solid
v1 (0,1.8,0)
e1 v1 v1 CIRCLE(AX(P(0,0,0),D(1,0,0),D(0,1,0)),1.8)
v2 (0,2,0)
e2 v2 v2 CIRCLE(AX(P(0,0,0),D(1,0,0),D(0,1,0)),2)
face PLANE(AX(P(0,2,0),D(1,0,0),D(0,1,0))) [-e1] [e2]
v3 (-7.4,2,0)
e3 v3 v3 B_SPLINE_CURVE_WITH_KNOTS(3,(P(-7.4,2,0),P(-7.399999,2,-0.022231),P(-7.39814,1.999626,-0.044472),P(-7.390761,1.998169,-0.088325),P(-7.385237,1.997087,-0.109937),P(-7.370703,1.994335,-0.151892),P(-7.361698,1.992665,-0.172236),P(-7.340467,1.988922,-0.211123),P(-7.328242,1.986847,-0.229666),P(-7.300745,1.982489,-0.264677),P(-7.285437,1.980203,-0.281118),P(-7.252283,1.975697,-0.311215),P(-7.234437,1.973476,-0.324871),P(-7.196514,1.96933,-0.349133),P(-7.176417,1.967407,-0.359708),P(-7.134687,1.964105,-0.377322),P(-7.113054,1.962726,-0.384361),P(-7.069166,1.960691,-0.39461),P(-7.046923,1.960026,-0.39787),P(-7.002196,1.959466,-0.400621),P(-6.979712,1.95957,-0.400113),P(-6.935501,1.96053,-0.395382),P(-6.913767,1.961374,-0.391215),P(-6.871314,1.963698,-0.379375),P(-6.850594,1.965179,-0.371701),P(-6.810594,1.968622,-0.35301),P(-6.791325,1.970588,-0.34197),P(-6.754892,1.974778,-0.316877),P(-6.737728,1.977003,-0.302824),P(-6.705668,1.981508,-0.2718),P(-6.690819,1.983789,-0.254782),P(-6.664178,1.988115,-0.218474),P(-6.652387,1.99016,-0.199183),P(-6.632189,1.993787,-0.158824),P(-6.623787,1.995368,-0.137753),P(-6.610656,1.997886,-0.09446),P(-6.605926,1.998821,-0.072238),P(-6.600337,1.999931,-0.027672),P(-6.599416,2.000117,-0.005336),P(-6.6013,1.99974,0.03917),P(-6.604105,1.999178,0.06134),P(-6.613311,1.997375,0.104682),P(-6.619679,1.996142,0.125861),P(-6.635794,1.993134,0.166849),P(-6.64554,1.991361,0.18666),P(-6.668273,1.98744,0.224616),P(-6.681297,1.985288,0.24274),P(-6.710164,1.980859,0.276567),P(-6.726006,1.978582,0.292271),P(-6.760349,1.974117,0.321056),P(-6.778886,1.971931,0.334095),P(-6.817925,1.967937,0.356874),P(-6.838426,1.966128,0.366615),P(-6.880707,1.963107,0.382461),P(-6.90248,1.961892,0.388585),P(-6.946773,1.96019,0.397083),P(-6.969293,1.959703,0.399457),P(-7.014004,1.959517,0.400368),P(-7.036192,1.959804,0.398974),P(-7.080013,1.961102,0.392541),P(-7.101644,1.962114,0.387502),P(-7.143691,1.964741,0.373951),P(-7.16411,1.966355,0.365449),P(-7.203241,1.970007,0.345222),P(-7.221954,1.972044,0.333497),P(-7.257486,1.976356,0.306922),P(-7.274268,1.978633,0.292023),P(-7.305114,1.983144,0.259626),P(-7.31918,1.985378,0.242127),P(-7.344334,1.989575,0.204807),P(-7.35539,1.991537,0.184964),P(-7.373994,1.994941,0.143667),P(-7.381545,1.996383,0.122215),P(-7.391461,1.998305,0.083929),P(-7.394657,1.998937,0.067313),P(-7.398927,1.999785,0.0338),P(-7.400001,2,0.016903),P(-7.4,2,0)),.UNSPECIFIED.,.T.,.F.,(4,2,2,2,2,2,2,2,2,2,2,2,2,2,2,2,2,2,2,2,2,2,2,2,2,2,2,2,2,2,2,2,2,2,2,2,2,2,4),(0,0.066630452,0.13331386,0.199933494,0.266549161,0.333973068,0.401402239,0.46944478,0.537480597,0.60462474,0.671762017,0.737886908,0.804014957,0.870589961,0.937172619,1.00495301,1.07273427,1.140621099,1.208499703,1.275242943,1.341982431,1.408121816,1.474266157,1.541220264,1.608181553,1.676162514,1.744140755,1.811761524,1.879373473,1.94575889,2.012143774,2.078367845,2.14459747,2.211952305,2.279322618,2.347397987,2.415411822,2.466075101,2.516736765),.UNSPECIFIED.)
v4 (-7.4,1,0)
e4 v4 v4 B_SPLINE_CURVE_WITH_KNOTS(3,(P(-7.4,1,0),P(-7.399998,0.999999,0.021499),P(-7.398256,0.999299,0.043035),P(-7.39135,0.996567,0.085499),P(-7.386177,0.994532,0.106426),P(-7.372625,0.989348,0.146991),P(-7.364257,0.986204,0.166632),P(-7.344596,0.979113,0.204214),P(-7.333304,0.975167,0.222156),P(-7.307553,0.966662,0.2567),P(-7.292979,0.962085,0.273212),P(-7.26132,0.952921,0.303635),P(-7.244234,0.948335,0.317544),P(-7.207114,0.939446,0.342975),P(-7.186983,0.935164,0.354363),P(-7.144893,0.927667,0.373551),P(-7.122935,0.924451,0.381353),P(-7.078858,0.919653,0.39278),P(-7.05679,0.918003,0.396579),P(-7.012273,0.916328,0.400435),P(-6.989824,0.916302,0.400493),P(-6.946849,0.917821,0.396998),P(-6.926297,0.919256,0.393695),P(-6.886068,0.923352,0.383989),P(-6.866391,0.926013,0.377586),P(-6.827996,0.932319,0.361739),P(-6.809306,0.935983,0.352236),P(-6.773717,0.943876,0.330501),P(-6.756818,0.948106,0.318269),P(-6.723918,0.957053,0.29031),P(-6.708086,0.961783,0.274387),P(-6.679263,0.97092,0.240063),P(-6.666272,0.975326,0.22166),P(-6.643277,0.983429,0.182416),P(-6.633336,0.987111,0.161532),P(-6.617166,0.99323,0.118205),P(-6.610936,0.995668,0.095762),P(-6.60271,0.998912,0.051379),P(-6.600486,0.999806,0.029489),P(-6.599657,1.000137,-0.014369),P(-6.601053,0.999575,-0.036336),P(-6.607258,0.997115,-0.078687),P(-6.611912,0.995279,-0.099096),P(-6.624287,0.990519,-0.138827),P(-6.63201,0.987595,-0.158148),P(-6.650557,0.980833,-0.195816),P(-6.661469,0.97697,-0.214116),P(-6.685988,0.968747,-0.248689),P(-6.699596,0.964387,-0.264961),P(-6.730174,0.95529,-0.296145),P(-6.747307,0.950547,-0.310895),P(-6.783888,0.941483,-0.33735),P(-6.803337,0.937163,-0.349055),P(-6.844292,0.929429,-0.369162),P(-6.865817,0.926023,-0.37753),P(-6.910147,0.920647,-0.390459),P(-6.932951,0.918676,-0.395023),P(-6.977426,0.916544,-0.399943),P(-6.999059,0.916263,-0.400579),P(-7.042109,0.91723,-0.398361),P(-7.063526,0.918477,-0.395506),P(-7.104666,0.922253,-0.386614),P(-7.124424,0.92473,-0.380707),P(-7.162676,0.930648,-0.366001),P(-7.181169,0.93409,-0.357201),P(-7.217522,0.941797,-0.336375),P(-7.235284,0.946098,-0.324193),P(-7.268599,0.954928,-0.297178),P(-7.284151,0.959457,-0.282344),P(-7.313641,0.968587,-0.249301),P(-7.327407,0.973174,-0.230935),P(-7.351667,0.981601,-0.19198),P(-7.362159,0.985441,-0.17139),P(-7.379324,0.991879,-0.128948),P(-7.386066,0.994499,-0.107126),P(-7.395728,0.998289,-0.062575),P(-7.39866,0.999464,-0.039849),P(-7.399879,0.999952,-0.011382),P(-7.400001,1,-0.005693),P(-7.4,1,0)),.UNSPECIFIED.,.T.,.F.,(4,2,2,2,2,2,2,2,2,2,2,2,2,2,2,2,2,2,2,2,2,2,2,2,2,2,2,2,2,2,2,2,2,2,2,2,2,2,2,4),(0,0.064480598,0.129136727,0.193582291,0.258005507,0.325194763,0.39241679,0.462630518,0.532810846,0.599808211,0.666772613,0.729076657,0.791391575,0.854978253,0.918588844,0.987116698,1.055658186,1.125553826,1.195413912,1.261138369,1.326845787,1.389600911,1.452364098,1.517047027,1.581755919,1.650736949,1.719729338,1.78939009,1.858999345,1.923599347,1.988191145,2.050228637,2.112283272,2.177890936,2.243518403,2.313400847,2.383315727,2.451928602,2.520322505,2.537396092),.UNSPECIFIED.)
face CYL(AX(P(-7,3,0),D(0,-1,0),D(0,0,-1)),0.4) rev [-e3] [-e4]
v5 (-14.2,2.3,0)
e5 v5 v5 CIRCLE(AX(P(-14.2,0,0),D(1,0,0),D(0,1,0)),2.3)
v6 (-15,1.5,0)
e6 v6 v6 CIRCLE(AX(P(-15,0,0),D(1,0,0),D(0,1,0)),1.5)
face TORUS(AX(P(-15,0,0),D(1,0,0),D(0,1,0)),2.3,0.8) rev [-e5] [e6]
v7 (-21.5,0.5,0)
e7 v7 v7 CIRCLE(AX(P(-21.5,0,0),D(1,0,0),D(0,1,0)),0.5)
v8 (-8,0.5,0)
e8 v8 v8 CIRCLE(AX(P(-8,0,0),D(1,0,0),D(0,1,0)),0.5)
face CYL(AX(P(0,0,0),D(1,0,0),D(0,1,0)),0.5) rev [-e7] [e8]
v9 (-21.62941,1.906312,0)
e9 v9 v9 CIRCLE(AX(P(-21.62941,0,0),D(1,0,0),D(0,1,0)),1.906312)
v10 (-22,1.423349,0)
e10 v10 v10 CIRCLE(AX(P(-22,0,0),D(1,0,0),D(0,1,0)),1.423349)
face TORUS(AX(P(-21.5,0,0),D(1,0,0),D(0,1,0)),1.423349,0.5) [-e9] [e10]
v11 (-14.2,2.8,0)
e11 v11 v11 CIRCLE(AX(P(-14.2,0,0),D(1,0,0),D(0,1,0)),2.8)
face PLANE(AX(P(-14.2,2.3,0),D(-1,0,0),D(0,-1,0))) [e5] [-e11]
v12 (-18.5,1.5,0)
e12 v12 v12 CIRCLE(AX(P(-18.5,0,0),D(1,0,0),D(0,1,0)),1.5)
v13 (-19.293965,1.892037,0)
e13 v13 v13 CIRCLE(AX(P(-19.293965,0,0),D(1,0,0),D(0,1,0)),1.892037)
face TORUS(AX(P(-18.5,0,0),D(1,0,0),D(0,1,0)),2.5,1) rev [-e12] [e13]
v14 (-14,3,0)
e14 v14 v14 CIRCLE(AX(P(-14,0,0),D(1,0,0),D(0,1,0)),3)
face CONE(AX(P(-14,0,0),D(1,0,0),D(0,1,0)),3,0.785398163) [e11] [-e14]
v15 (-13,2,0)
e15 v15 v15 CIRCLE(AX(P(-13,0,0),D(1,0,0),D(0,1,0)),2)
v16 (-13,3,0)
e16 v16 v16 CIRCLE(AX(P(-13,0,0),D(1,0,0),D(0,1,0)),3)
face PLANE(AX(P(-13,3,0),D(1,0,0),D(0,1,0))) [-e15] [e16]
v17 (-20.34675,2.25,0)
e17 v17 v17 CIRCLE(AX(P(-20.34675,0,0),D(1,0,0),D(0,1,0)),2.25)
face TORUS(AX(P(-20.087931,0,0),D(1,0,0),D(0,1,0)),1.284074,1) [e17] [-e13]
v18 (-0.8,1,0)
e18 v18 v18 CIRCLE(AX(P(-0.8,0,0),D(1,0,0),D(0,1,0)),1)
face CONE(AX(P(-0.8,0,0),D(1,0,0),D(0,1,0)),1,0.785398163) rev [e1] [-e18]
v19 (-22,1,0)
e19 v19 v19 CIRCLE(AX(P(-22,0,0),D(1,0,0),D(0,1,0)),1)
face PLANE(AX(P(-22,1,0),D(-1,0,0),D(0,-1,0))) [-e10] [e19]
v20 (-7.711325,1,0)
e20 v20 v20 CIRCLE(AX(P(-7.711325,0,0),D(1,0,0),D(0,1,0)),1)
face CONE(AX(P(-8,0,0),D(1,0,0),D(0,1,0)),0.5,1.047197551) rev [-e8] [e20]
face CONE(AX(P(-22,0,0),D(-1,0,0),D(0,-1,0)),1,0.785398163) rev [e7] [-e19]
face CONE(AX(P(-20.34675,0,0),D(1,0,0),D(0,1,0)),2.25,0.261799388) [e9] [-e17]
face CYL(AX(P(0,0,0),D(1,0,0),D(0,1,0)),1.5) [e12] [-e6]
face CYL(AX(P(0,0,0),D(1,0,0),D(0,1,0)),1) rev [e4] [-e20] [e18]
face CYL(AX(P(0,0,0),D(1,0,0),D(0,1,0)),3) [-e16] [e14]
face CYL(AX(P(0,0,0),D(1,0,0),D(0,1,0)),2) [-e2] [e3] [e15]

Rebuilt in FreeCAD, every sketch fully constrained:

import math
import FreeCAD as App
import Part
import Sketcher
Q = App.Units.Quantity

doc = App.newDocument("Part")
params = doc.addObject("Spreadsheet::Sheet", "Params")
for row, (alias, value) in enumerate([
    ("sketch1_radius", "1 mm"),
    ("sketch1_radius2", "0.8 mm"),
    ("sketch1_radius3", "0.5 mm"),
    ("sketch1_width", "13 mm"),
    ("sketch1_width2", "1 mm"),
    ("revolution_angle", "360 deg"),
    ("sketch2_diameter", "0.8 mm"),
], start=1):
    params.set(f"A{row}", alias)
    params.set(f"B{row}", "=" + value)
    params.setAlias(f"B{row}", alias)

body = doc.addObject("PartDesign::Body", "Body")

sketch1 = doc.addObject("Sketcher::SketchObject", "Sketch")
body.addObject(sketch1)
sketch1.AttachmentSupport = (doc.XY_Plane, [""])
sketch1.MapMode = "FlatFace"
sketch1.addGeometry(Part.LineSegment(App.Vector(-0.8, 1, 0), App.Vector(0, 1.8, 0)), False)
sketch1.addGeometry(Part.LineSegment(App.Vector(0, 1.8, 0), App.Vector(0, 2, 0)), False)
sketch1.addGeometry(Part.LineSegment(App.Vector(0, 2, 0), App.Vector(-13, 2, 0)), False)
sketch1.addGeometry(Part.LineSegment(App.Vector(-13, 2, 0), App.Vector(-13, 3, 0)), False)
sketch1.addGeometry(Part.LineSegment(App.Vector(-13, 3, 0), App.Vector(-14, 3, 0)), False)
sketch1.addGeometry(Part.LineSegment(App.Vector(-14, 3, 0), App.Vector(-14.2, 2.8, 0)), False)
sketch1.addGeometry(Part.LineSegment(App.Vector(-14.2, 2.8, 0), App.Vector(-14.2, 2.3, 0)), False)
sketch1.addGeometry(Part.ArcOfCircle(Part.Circle(App.Vector(-15, 2.3, 0), App.Vector(0, 0, 1), 0.8), math.radians(-90), math.radians(0)), False)
sketch1.addGeometry(Part.LineSegment(App.Vector(-15, 1.5, 0), App.Vector(-18.5, 1.5, 0)), False)
sketch1.addGeometry(Part.ArcOfCircle(Part.Circle(App.Vector(-18.5, 2.5, 0), App.Vector(0, 0, 1), 1), math.radians(-143), math.radians(-90)), False)
sketch1.addGeometry(Part.ArcOfCircle(Part.Circle(App.Vector(-20.09, 1.28, 0), App.Vector(0, 0, 1), 1), math.radians(37), math.radians(105)), False)
sketch1.addGeometry(Part.LineSegment(App.Vector(-20.35, 2.25, 0), App.Vector(-21.63, 1.91, 0)), False)
sketch1.addGeometry(Part.ArcOfCircle(Part.Circle(App.Vector(-21.5, 1.42, 0), App.Vector(0, 0, 1), 0.5), math.radians(105), math.radians(180)), False)
sketch1.addGeometry(Part.LineSegment(App.Vector(-22, 1.42, 0), App.Vector(-22, 1, 0)), False)
sketch1.addGeometry(Part.LineSegment(App.Vector(-22, 1, 0), App.Vector(-21.5, 0.5, 0)), False)
sketch1.addGeometry(Part.LineSegment(App.Vector(-21.5, 0.5, 0), App.Vector(-8, 0.5, 0)), False)
sketch1.addGeometry(Part.LineSegment(App.Vector(-8, 0.5, 0), App.Vector(-7.71, 1, 0)), False)
sketch1.addGeometry(Part.LineSegment(App.Vector(-7.71, 1, 0), App.Vector(-0.8, 1, 0)), False)
sketch1.addConstraint(Sketcher.Constraint("Coincident", 0, 2, 1, 1))
sketch1.addConstraint(Sketcher.Constraint("Coincident", 1, 2, 2, 1))
sketch1.addConstraint(Sketcher.Constraint("Coincident", 2, 2, 3, 1))
sketch1.addConstraint(Sketcher.Constraint("Coincident", 3, 2, 4, 1))
sketch1.addConstraint(Sketcher.Constraint("Coincident", 4, 2, 5, 1))
sketch1.addConstraint(Sketcher.Constraint("Coincident", 5, 2, 6, 1))
sketch1.addConstraint(Sketcher.Constraint("Tangent", 6, 2, 7, 2))
sketch1.addConstraint(Sketcher.Constraint("Tangent", 7, 1, 8, 1))
sketch1.addConstraint(Sketcher.Constraint("Tangent", 8, 2, 9, 2))
sketch1.addConstraint(Sketcher.Constraint("Tangent", 9, 1, 10, 1))
sketch1.addConstraint(Sketcher.Constraint("Tangent", 10, 2, 11, 1))
sketch1.addConstraint(Sketcher.Constraint("Tangent", 11, 2, 12, 1))
sketch1.addConstraint(Sketcher.Constraint("Tangent", 12, 2, 13, 1))
sketch1.addConstraint(Sketcher.Constraint("Coincident", 13, 2, 14, 1))
sketch1.addConstraint(Sketcher.Constraint("Coincident", 14, 2, 15, 1))
sketch1.addConstraint(Sketcher.Constraint("Coincident", 15, 2, 16, 1))
sketch1.addConstraint(Sketcher.Constraint("Coincident", 16, 2, 17, 1))
sketch1.addConstraint(Sketcher.Constraint("Coincident", 17, 2, 0, 1))
sketch1.addConstraint(Sketcher.Constraint("Vertical", 1))
sketch1.addConstraint(Sketcher.Constraint("Horizontal", 2))
sketch1.addConstraint(Sketcher.Constraint("Vertical", 3))
sketch1.addConstraint(Sketcher.Constraint("Horizontal", 4))
sketch1.addConstraint(Sketcher.Constraint("Vertical", 6))
sketch1.addConstraint(Sketcher.Constraint("Horizontal", 8))
sketch1.addConstraint(Sketcher.Constraint("Vertical", 13))
sketch1.addConstraint(Sketcher.Constraint("Horizontal", 15))
sketch1.addConstraint(Sketcher.Constraint("Horizontal", 17))
sketch1.addConstraint(Sketcher.Constraint("Equal", 9, 10))
sketch1.addConstraint(Sketcher.Constraint("PointOnObject", 0, 2, -2))
sketch1.addConstraint(Sketcher.Constraint("Parallel", 0, 5))
sketch1.addConstraint(Sketcher.Constraint("Perpendicular", 5, 14))
sketch1.addConstraint(Sketcher.Constraint("Horizontal", 13, 2, 16, 2))
sketch1.addConstraint(Sketcher.Constraint("Vertical", 12, 3, 14, 2))
sketch1.addConstraint(Sketcher.Constraint("Equal", 4, 3))
sketch1.addConstraint(Sketcher.Constraint("Radius", 9, Q("1 mm")))
sketch1.addConstraint(Sketcher.Constraint("Radius", 7, Q("0.8 mm")))
sketch1.addConstraint(Sketcher.Constraint("Radius", 12, Q("0.5 mm")))
sketch1.addConstraint(Sketcher.Constraint("DistanceX", 2, 2, 2, 1, Q("13 mm")))
sketch1.addConstraint(Sketcher.Constraint("DistanceX", 4, 2, 4, 1, Q("1 mm")))
sketch1.addConstraint(Sketcher.Constraint("Angle", 0, Q("45 deg")))
sketch1.addConstraint(Sketcher.Constraint("Angle", 11, Q("-165 deg")))
sketch1.addConstraint(Sketcher.Constraint("Angle", 16, Q("60 deg")))
sketch1.addConstraint(Sketcher.Constraint("DistanceX", 8, 2, 8, 1, Q("3.5 mm")))
sketch1.addConstraint(Sketcher.Constraint("DistanceX", 15, 1, 15, 2, Q("13.5 mm")))
sketch1.addConstraint(Sketcher.Constraint("DistanceY", 1, 1, 1, 2, Q("0.2 mm")))
sketch1.addConstraint(Sketcher.Constraint("DistanceY", 6, 2, 6, 1, Q("0.5 mm")))
sketch1.addConstraint(Sketcher.Constraint("DistanceX", 7, 3, -1, 1, Q("15 mm")))
sketch1.addConstraint(Sketcher.Constraint("DistanceY", -1, 1, 1, 2, Q("2 mm")))
sketch1.addConstraint(Sketcher.Constraint("DistanceX", 12, 2, -1, 1, Q("22 mm")))
sketch1.addConstraint(Sketcher.Constraint("DistanceY", -1, 1, 13, 2, Q("1 mm")))
sketch1.addConstraint(Sketcher.Constraint("DistanceY", -1, 1, 10, 2, Q("2.25 mm")))
sketch1.setExpression("Constraints[34]", "Params.sketch1_radius")
sketch1.setExpression("Constraints[35]", "Params.sketch1_radius2")
sketch1.setExpression("Constraints[36]", "Params.sketch1_radius3")
sketch1.setExpression("Constraints[37]", "Params.sketch1_width")
sketch1.setExpression("Constraints[38]", "Params.sketch1_width2")
revolution = doc.addObject("PartDesign::Revolution", "Revolution")
body.addObject(revolution)
revolution.Profile = sketch1
revolution.ReferenceAxis = (sketch1, ["H_Axis"])
revolution.setExpression("Angle", "Params.revolution_angle")

sketch2 = doc.addObject("Sketcher::SketchObject", "Sketch001")
body.addObject(sketch2)
sketch2.AttachmentSupport = (doc.XZ_Plane, [""])
sketch2.MapMode = "FlatFace"
sketch2.addGeometry(Part.Circle(App.Vector(-7, 0, 0), App.Vector(0, 0, 1), 0.4), False)
sketch2.addConstraint(Sketcher.Constraint("PointOnObject", 0, 3, -1))
sketch2.addConstraint(Sketcher.Constraint("Diameter", 0, Q("0.8 mm")))
sketch2.addConstraint(Sketcher.Constraint("DistanceX", 0, 3, -1, 1, Q("7 mm")))
sketch2.setExpression("Constraints[1]", "Params.sketch2_diameter")
pocket1 = doc.addObject("PartDesign::Pocket", "Pocket")
body.addObject(pocket1)
pocket1.Profile = sketch2
pocket1.Type = "ThroughAll"

doc.recompute()
